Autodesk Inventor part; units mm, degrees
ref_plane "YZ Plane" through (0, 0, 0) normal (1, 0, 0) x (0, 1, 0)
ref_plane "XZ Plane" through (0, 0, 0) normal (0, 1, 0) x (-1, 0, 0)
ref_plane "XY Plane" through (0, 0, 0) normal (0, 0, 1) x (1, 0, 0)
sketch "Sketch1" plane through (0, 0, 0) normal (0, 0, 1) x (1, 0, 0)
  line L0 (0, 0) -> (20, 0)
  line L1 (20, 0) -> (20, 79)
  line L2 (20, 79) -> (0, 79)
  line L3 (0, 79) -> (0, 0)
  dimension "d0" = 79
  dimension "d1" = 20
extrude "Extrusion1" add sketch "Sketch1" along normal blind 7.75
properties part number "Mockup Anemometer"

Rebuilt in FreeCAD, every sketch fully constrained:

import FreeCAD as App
import Part
import Sketcher

doc = App.newDocument("Part")
params = doc.addObject("Spreadsheet::Sheet", "Params")
for row, (alias, value) in enumerate([
    ("sketch1_width", "20 mm"),
    ("sketch1_height", "79 mm"),
    ("pad1_length", "7.75 mm"),
], start=1):
    params.set(f"A{row}", alias)
    params.set(f"B{row}", "=" + value)
    params.setAlias(f"B{row}", alias)

body = doc.addObject("PartDesign::Body", "Body")

sketch1 = body.newObject("Sketcher::SketchObject", "Sketch")
sketch1.AttachmentSupport = (doc.getObject("XY_Plane"), [""])
sketch1.MapMode = "FlatFace"
sketch1.addGeometry([
    Part.LineSegment(App.Vector(0, 79, 0), App.Vector(0, 0, 0)),
    Part.LineSegment(App.Vector(0, 0, 0), App.Vector(20, 0, 0)),
    Part.LineSegment(App.Vector(20, 0, 0), App.Vector(20, 79, 0)),
    Part.LineSegment(App.Vector(20, 79, 0), App.Vector(0, 79, 0)),
], False)
sketch1.addConstraint([
    Sketcher.Constraint("Coincident", 0, 2, 1, 1),
    Sketcher.Constraint("Coincident", 1, 2, 2, 1),
    Sketcher.Constraint("Coincident", 2, 2, 3, 1),
    Sketcher.Constraint("Coincident", 3, 2, 0, 1),
    Sketcher.Constraint("Vertical", 0),
    Sketcher.Constraint("Horizontal", 1),
    Sketcher.Constraint("Vertical", 2),
    Sketcher.Constraint("Horizontal", 3),
    Sketcher.Constraint("Coincident", 0, 2, -1, 1),
    Sketcher.Constraint("DistanceX", 1, 1, 1, 2, 20.0),
    Sketcher.Constraint("DistanceY", 0, 2, 0, 1, 79.0),
])
sketch1.setExpression("Constraints[9]", "Params.sketch1_width")
sketch1.setExpression("Constraints[10]", "Params.sketch1_height")
pad1 = body.newObject("PartDesign::Pad", "Pad")
pad1.Profile = sketch1
pad1.setExpression("Length", "Params.pad1_length")

doc.recompute()
